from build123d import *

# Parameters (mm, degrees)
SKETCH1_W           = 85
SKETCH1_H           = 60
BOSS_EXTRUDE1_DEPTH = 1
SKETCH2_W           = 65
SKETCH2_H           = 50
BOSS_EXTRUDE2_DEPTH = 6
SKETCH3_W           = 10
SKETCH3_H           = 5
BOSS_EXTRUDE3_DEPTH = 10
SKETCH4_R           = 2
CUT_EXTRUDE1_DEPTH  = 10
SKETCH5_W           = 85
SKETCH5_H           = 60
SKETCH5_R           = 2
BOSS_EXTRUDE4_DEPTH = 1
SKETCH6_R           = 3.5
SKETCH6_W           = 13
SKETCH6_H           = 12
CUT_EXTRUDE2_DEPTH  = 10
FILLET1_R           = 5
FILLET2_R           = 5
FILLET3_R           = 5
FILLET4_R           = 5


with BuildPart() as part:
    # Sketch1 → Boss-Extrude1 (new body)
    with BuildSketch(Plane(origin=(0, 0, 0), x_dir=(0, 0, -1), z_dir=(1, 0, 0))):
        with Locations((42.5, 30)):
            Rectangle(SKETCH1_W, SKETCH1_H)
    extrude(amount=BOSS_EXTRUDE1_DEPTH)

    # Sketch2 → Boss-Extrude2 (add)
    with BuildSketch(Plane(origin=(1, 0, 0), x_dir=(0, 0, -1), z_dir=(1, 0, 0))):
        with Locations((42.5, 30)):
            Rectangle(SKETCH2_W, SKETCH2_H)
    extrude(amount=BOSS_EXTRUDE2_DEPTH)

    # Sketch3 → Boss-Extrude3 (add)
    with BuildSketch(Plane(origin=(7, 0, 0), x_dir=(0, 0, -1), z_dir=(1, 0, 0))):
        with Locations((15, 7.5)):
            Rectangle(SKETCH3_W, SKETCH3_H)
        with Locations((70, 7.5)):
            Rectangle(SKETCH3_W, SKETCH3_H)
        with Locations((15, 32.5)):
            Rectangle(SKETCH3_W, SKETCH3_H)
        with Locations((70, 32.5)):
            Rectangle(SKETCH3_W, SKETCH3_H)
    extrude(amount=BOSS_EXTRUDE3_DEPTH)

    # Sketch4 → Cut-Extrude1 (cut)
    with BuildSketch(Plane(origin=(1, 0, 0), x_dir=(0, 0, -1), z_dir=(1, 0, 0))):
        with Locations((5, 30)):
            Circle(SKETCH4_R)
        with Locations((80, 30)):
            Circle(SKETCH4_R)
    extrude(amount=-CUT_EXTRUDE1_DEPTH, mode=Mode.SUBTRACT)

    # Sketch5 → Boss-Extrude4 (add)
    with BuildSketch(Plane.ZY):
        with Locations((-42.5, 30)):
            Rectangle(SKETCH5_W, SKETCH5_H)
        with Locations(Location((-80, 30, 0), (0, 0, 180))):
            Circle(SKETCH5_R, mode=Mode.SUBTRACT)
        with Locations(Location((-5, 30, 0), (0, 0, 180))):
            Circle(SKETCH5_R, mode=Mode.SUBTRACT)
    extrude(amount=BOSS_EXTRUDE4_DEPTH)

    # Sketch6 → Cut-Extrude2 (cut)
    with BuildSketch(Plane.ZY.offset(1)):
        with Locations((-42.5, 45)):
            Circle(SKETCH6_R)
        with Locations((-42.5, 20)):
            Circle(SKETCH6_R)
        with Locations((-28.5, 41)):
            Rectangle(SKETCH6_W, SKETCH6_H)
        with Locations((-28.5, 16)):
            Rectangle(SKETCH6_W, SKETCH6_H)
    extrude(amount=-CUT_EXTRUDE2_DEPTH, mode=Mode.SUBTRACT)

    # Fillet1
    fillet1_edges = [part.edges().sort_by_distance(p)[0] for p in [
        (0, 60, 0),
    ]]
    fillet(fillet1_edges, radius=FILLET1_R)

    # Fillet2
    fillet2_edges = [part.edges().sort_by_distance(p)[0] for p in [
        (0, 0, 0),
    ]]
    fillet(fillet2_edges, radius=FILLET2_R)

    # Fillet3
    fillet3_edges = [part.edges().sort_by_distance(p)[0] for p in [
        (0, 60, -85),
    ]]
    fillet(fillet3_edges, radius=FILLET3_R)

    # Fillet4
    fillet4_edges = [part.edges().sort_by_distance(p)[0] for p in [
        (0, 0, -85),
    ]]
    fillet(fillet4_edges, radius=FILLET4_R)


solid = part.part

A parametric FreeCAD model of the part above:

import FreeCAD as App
import Part
import Sketcher
from FreeCAD import Vector


def edges_at(feature, points):
    """Names of the edges that pass closest to the given points."""
    edges = feature.Shape.Edges
    near = lambda p: min(range(len(edges)), key=lambda i: edges[i].distToShape(Part.Vertex(*p))[0])
    return sorted({f"Edge{near(p) + 1}" for p in points})

doc = App.newDocument("Part")
body = doc.addObject("PartDesign::Body", "Body")

# Sketch on YZ plane
sketch1 = doc.addObject("Sketcher::SketchObject", "Sketch")
body.addObject(sketch1)
sketch1.AttachmentSupport = (doc.YZ_Plane, [""])
sketch1.MapMode = "FlatFace"
sketch1.addGeometry([
    Part.LineSegment(Vector(60, 0, 0), Vector(0, 0, 0)),
    Part.LineSegment(Vector(0, 0, 0), Vector(0, -85, 0)),
    Part.LineSegment(Vector(0, -85, 0), Vector(60, -85, 0)),
    Part.LineSegment(Vector(60, -85, 0), Vector(60, 0, 0)),
], False)
sketch1.addConstraint([
    Sketcher.Constraint("Coincident", 0, 2, 1, 1),
    Sketcher.Constraint("Coincident", 1, 2, 2, 1),
    Sketcher.Constraint("Coincident", 2, 2, 3, 1),
    Sketcher.Constraint("Coincident", 3, 2, 0, 1),
    Sketcher.Constraint("Horizontal", 0),
    Sketcher.Constraint("Vertical", 1),
    Sketcher.Constraint("Horizontal", 2),
    Sketcher.Constraint("Vertical", 3),
    Sketcher.Constraint("Coincident", 0, 2, -1, 1),
    Sketcher.Constraint("DistanceX", 0, 2, 0, 1, 60.0),
    Sketcher.Constraint("DistanceY", 1, 2, 1, 1, 85.0),
])
pad1 = doc.addObject("PartDesign::Pad", "Pad")
body.addObject(pad1)
pad1.Profile = sketch1
pad1.Length = 1

# Sketch on YZ plane
sketch2 = doc.addObject("Sketcher::SketchObject", "Sketch001")
body.addObject(sketch2)
sketch2.AttachmentSupport = (doc.YZ_Plane, [""])
sketch2.MapMode = "FlatFace"
sketch2.AttachmentOffset = App.Placement(Vector(0, 0, 1), App.Rotation())
sketch2.addGeometry([
    Part.LineSegment(Vector(55, -10, 0), Vector(5, -10, 0)),
    Part.LineSegment(Vector(5, -10, 0), Vector(5, -75, 0)),
    Part.LineSegment(Vector(5, -75, 0), Vector(55, -75, 0)),
    Part.LineSegment(Vector(55, -75, 0), Vector(55, -10, 0)),
], False)
sketch2.addConstraint([
    Sketcher.Constraint("Coincident", 0, 2, 1, 1),
    Sketcher.Constraint("Coincident", 1, 2, 2, 1),
    Sketcher.Constraint("Coincident", 2, 2, 3, 1),
    Sketcher.Constraint("Coincident", 3, 2, 0, 1),
    Sketcher.Constraint("Horizontal", 0),
    Sketcher.Constraint("Vertical", 1),
    Sketcher.Constraint("Horizontal", 2),
    Sketcher.Constraint("Vertical", 3),
    Sketcher.Constraint("DistanceX", 0, 2, 0, 1, 50.0),
    Sketcher.Constraint("DistanceY", 1, 2, 1, 1, 65.0),
    Sketcher.Constraint("DistanceX", -1, 1, 0, 2, 5.0),
    Sketcher.Constraint("DistanceY", 0, 2, -1, 1, 10.0),
])
pad2 = doc.addObject("PartDesign::Pad", "Pad001")
body.addObject(pad2)
pad2.Profile = sketch2
pad2.Length = 6

# Sketch on YZ plane
sketch3 = doc.addObject("Sketcher::SketchObject", "Sketch002")
body.addObject(sketch3)
sketch3.AttachmentSupport = (doc.YZ_Plane, [""])
sketch3.MapMode = "FlatFace"
sketch3.AttachmentOffset = App.Placement(Vector(0, 0, 7), App.Rotation())
sketch3.addGeometry([
    Part.LineSegment(Vector(10, -10, 0), Vector(5, -10, 0)),  # 0
    Part.LineSegment(Vector(5, -10, 0), Vector(5, -20, 0)),  # 1
    Part.LineSegment(Vector(5, -20, 0), Vector(10, -20, 0)),  # 2
    Part.LineSegment(Vector(10, -20, 0), Vector(10, -10, 0)),  # 3
    Part.LineSegment(Vector(10, -65, 0), Vector(5, -65, 0)),  # 4
    Part.LineSegment(Vector(5, -65, 0), Vector(5, -75, 0)),  # 5
    Part.LineSegment(Vector(5, -75, 0), Vector(10, -75, 0)),  # 6
    Part.LineSegment(Vector(10, -75, 0), Vector(10, -65, 0)),  # 7
    Part.LineSegment(Vector(35, -10, 0), Vector(30, -10, 0)),  # 8
    Part.LineSegment(Vector(30, -10, 0), Vector(30, -20, 0)),  # 9
    Part.LineSegment(Vector(30, -20, 0), Vector(35, -20, 0)),  # 10
    Part.LineSegment(Vector(35, -20, 0), Vector(35, -10, 0)),  # 11
    Part.LineSegment(Vector(35, -65, 0), Vector(30, -65, 0)),  # 12
    Part.LineSegment(Vector(30, -65, 0), Vector(30, -75, 0)),  # 13
    Part.LineSegment(Vector(30, -75, 0), Vector(35, -75, 0)),  # 14
    Part.LineSegment(Vector(35, -75, 0), Vector(35, -65, 0)),  # 15
], False)
sketch3.addConstraint([
    Sketcher.Constraint("Coincident", 0, 2, 1, 1),
    Sketcher.Constraint("Coincident", 1, 2, 2, 1),
    Sketcher.Constraint("Coincident", 2, 2, 3, 1),
    Sketcher.Constraint("Coincident", 3, 2, 0, 1),
    Sketcher.Constraint("Coincident", 4, 2, 5, 1),
    Sketcher.Constraint("Coincident", 5, 2, 6, 1),
    Sketcher.Constraint("Coincident", 6, 2, 7, 1),
    Sketcher.Constraint("Coincident", 7, 2, 4, 1),
    Sketcher.Constraint("Coincident", 8, 2, 9, 1),
    Sketcher.Constraint("Coincident", 9, 2, 10, 1),
    Sketcher.Constraint("Coincident", 10, 2, 11, 1),
    Sketcher.Constraint("Coincident", 11, 2, 8, 1),
    Sketcher.Constraint("Coincident", 12, 2, 13, 1),
    Sketcher.Constraint("Coincident", 13, 2, 14, 1),
    Sketcher.Constraint("Coincident", 14, 2, 15, 1),
    Sketcher.Constraint("Coincident", 15, 2, 12, 1),
    Sketcher.Constraint("Horizontal", 0),
    Sketcher.Constraint("Vertical", 1),
    Sketcher.Constraint("Horizontal", 2),
    Sketcher.Constraint("Vertical", 3),
    Sketcher.Constraint("Horizontal", 4),
    Sketcher.Constraint("Vertical", 5),
    Sketcher.Constraint("Horizontal", 6),
    Sketcher.Constraint("Vertical", 7),
    Sketcher.Constraint("Horizontal", 8),
    Sketcher.Constraint("Vertical", 9),
    Sketcher.Constraint("Horizontal", 10),
    Sketcher.Constraint("Vertical", 11),
    Sketcher.Constraint("Horizontal", 12),
    Sketcher.Constraint("Vertical", 13),
    Sketcher.Constraint("Horizontal", 14),
    Sketcher.Constraint("Vertical", 15),
    Sketcher.Constraint("Horizontal", 3, 2, 8, 2),
    Sketcher.Constraint("Horizontal", 2, 2, 9, 2),
    Sketcher.Constraint("Horizontal", 7, 2, 12, 2),
    Sketcher.Constraint("Horizontal", 6, 2, 13, 2),
    Sketcher.Constraint("Vertical", 1, 2, 4, 2),
    Sketcher.Constraint("Vertical", 3, 2, 6, 2),
    Sketcher.Constraint("Vertical", 9, 2, 12, 2),
    Sketcher.Constraint("Vertical", 11, 2, 14, 2),
    Sketcher.Constraint("Equal", 6, 8),
    Sketcher.Constraint("Equal", 3, 5),
    Sketcher.Constraint("DistanceX", 0, 2, 0, 1, 5.0),
    Sketcher.Constraint("DistanceY", 1, 2, 1, 1, 10.0),
    Sketcher.Constraint("DistanceX", -1, 1, 0, 2, 5.0),
    Sketcher.Constraint("DistanceY", 0, 2, -1, 1, 10.0),
    Sketcher.Constraint("DistanceY", 4, 2, -1, 1, 65.0),
    Sketcher.Constraint("DistanceX", -1, 1, 8, 2, 30.0),
])
pad3 = doc.addObject("PartDesign::Pad", "Pad002")
body.addObject(pad3)
pad3.Profile = sketch3
pad3.Length = 10

# Sketch on YZ plane
sketch4 = doc.addObject("Sketcher::SketchObject", "Sketch003")
body.addObject(sketch4)
sketch4.AttachmentSupport = (doc.YZ_Plane, [""])
sketch4.MapMode = "FlatFace"
sketch4.AttachmentOffset = App.Placement(Vector(0, 0, 1), App.Rotation())
sketch4.addGeometry([
    Part.Circle(Vector(30, -5, 0), Vector(0, 0, 1), 2),
    Part.Circle(Vector(30, -80, 0), Vector(0, 0, 1), 2),
], False)
sketch4.addConstraint([
    Sketcher.Constraint("Equal", 0, 1),
    Sketcher.Constraint("Vertical", 0, 3, 1, 3),
    Sketcher.Constraint("Diameter", 0, 4.0),
    Sketcher.Constraint("DistanceX", -1, 1, 0, 3, 30.0),
    Sketcher.Constraint("DistanceY", 0, 3, -1, 1, 5.0),
    Sketcher.Constraint("DistanceY", 1, 3, -1, 1, 80.0),
])
pocket1 = doc.addObject("PartDesign::Pocket", "Pocket")
body.addObject(pocket1)
pocket1.Profile = sketch4
pocket1.Length = 10

# Sketch on YZ plane
sketch5 = doc.addObject("Sketcher::SketchObject", "Sketch004")
body.addObject(sketch5)
sketch5.AttachmentSupport = (doc.YZ_Plane, [""])
sketch5.MapMode = "FlatFace"
sketch5.addGeometry([
    Part.LineSegment(Vector(60, -85, 0), Vector(0, -85, 0)),  # 0
    Part.LineSegment(Vector(0, -85, 0), Vector(0, 0, 0)),  # 1
    Part.LineSegment(Vector(0, 0, 0), Vector(60, 0, 0)),  # 2
    Part.LineSegment(Vector(60, 0, 0), Vector(60, -85, 0)),  # 3
    Part.Circle(Vector(30, -80, 0), Vector(0, 0, 1), 2),  # 4
    Part.Circle(Vector(30, -5, 0), Vector(0, 0, 1), 2),  # 5
], False)
sketch5.addConstraint([
    Sketcher.Constraint("Coincident", 0, 2, 1, 1),
    Sketcher.Constraint("Coincident", 1, 2, 2, 1),
    Sketcher.Constraint("Coincident", 2, 2, 3, 1),
    Sketcher.Constraint("Coincident", 3, 2, 0, 1),
    Sketcher.Constraint("Horizontal", 0),
    Sketcher.Constraint("Vertical", 1),
    Sketcher.Constraint("Horizontal", 2),
    Sketcher.Constraint("Vertical", 3),
    Sketcher.Constraint("Coincident", 1, 2, -1, 1),
    Sketcher.Constraint("Equal", 4, 5),
    Sketcher.Constraint("Vertical", 4, 3, 5, 3),
    Sketcher.Constraint("Diameter", 4, 4.0),
    Sketcher.Constraint("DistanceX", 0, 2, 0, 1, 60.0),
    Sketcher.Constraint("DistanceY", 1, 1, 1, 2, 85.0),
    Sketcher.Constraint("DistanceX", -1, 1, 4, 3, 30.0),
    Sketcher.Constraint("DistanceY", 4, 3, -1, 1, 80.0),
    Sketcher.Constraint("DistanceY", 5, 3, -1, 1, 5.0),
])
pad4 = doc.addObject("PartDesign::Pad", "Pad003")
body.addObject(pad4)
pad4.Profile = sketch5
pad4.Length = 1
pad4.Reversed = True

# Sketch on YZ plane
sketch6 = doc.addObject("Sketcher::SketchObject", "Sketch005")
body.addObject(sketch6)
sketch6.AttachmentSupport = (doc.YZ_Plane, [""])
sketch6.MapMode = "FlatFace"
sketch6.AttachmentOffset = App.Placement(Vector(0, 0, -1), App.Rotation())
sketch6.addGeometry([
    Part.Circle(Vector(45, -42.5, 0), Vector(0, 0, 1), 3.5),  # 0
    Part.Circle(Vector(20, -42.5, 0), Vector(0, 0, 1), 3.5),  # 1
    Part.LineSegment(Vector(47, -35, 0), Vector(35, -35, 0)),  # 2
    Part.LineSegment(Vector(35, -35, 0), Vector(35, -22, 0)),  # 3
    Part.LineSegment(Vector(35, -22, 0), Vector(47, -22, 0)),  # 4
    Part.LineSegment(Vector(47, -22, 0), Vector(47, -35, 0)),  # 5
    Part.LineSegment(Vector(22, -35, 0), Vector(10, -35, 0)),  # 6
    Part.LineSegment(Vector(10, -35, 0), Vector(10, -22, 0)),  # 7
    Part.LineSegment(Vector(10, -22, 0), Vector(22, -22, 0)),  # 8
    Part.LineSegment(Vector(22, -22, 0), Vector(22, -35, 0)),  # 9
], False)
sketch6.addConstraint([
    Sketcher.Constraint("Coincident", 2, 2, 3, 1),
    Sketcher.Constraint("Coincident", 3, 2, 4, 1),
    Sketcher.Constraint("Coincident", 4, 2, 5, 1),
    Sketcher.Constraint("Coincident", 5, 2, 2, 1),
    Sketcher.Constraint("Coincident", 6, 2, 7, 1),
    Sketcher.Constraint("Coincident", 7, 2, 8, 1),
    Sketcher.Constraint("Coincident", 8, 2, 9, 1),
    Sketcher.Constraint("Coincident", 9, 2, 6, 1),
    Sketcher.Constraint("Horizontal", 2),
    Sketcher.Constraint("Vertical", 3),
    Sketcher.Constraint("Horizontal", 4),
    Sketcher.Constraint("Vertical", 5),
    Sketcher.Constraint("Horizontal", 6),
    Sketcher.Constraint("Vertical", 7),
    Sketcher.Constraint("Horizontal", 8),
    Sketcher.Constraint("Vertical", 9),
    Sketcher.Constraint("Equal", 0, 1),
    Sketcher.Constraint("Horizontal", 0, 3, 1, 3),
    Sketcher.Constraint("Horizontal", 5, 2, 6, 2),
    Sketcher.Constraint("Horizontal", 4, 2, 7, 2),
    Sketcher.Constraint("Equal", 4, 6),
    Sketcher.Constraint("Diameter", 0, 7.0),
    Sketcher.Constraint("DistanceX", 2, 2, 2, 1, 12.0),
    Sketcher.Constraint("DistanceY", 3, 1, 3, 2, 13.0),
    Sketcher.Constraint("DistanceX", -1, 1, 0, 3, 45.0),
    Sketcher.Constraint("DistanceX", -1, 1, 1, 3, 20.0),
    Sketcher.Constraint("DistanceX", -1, 1, 2, 2, 35.0),
    Sketcher.Constraint("DistanceY", 2, 2, -1, 1, 35.0),
    Sketcher.Constraint("DistanceX", -1, 1, 6, 2, 10.0),
    Sketcher.Constraint("DistanceY", 0, 3, -1, 1, 42.5),
])
pocket2 = doc.addObject("PartDesign::Pocket", "Pocket001")
body.addObject(pocket2)
pocket2.Profile = sketch6
pocket2.Length = 10
pocket2.Reversed = True
doc.recompute()

fillet = doc.addObject("PartDesign::Fillet", "Fillet")
body.addObject(fillet)
fillet.Base = (pocket2, edges_at(pocket2, [(0, 60, 0)]))
fillet.Radius = 5
doc.recompute()

fillet2 = doc.addObject("PartDesign::Fillet", "Fillet001")
body.addObject(fillet2)
fillet2.Base = (fillet, edges_at(fillet, [(0, 0, 0)]))
fillet2.Radius = 5
doc.recompute()

fillet3 = doc.addObject("PartDesign::Fillet", "Fillet002")
body.addObject(fillet3)
fillet3.Base = (fillet2, edges_at(fillet2, [(0, 60, -85)]))
fillet3.Radius = 5
doc.recompute()

fillet4 = doc.addObject("PartDesign::Fillet", "Fillet003")
body.addObject(fillet4)
fillet4.Base = (fillet3, edges_at(fillet3, [(0, 0, -85)]))
fillet4.Radius = 5

doc.recompute()
